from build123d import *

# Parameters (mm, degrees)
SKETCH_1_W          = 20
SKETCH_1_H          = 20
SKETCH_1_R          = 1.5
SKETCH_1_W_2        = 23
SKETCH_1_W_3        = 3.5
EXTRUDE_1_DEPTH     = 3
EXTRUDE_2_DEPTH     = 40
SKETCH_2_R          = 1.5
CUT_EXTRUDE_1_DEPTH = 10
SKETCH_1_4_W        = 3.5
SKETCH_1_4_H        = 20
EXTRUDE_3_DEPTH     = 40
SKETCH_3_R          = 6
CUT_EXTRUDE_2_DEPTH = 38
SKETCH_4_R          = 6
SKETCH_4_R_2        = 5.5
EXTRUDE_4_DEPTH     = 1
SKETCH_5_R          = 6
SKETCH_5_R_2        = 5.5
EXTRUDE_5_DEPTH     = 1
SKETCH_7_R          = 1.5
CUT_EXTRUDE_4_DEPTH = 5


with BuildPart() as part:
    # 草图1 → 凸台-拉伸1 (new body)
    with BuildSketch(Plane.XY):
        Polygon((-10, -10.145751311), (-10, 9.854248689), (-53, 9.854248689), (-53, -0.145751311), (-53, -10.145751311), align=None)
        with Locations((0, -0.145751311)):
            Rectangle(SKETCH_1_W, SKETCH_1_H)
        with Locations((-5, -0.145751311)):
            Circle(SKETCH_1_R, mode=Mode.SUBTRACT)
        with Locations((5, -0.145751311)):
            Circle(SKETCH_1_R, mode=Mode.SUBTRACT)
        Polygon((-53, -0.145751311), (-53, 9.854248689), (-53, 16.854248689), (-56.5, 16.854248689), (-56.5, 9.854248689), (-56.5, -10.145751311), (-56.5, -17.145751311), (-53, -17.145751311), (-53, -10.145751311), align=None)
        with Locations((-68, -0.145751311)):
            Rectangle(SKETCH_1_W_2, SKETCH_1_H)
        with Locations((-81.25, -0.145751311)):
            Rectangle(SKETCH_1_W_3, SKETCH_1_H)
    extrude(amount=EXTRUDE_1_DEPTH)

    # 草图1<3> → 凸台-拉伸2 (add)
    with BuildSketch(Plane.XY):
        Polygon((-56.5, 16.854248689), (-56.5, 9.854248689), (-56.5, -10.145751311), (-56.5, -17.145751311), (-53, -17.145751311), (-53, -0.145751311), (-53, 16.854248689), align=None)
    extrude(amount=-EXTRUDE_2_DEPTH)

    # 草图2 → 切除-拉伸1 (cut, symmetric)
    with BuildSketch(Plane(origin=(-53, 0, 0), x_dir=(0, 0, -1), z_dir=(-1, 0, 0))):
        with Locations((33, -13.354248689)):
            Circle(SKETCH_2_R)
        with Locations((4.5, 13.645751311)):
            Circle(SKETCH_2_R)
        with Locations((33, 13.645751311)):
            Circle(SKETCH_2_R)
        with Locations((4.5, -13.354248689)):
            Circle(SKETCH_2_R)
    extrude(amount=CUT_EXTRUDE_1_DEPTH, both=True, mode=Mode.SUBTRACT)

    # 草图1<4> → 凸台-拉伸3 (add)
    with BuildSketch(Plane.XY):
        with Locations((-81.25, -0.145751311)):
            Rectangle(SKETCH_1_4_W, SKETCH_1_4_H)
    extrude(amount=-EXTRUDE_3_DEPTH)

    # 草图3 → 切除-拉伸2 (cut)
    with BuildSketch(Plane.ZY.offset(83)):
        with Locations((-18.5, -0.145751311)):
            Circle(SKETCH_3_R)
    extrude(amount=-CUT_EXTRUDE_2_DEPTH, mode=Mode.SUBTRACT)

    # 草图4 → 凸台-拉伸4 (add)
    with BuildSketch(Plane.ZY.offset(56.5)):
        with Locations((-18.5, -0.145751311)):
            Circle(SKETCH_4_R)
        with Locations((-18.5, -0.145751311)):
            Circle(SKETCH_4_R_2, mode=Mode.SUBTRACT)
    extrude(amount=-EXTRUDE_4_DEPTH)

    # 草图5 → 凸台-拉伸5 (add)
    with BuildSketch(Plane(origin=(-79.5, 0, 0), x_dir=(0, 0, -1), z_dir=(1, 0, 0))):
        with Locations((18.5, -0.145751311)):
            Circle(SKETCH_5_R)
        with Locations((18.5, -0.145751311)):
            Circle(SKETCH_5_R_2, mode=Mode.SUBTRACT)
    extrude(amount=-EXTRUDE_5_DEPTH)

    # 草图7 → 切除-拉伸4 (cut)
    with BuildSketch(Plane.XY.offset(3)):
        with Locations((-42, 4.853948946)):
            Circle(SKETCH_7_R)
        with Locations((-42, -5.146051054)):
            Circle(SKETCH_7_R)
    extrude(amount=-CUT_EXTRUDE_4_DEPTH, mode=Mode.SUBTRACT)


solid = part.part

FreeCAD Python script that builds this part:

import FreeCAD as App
import Part
import Sketcher
Q = App.Units.Quantity


def add_polygon(sketch, points):
    """Adds a closed chain of lines whose ends are joined by coincident constraints."""
    first, n = sketch.GeometryCount, len(points)
    for a, b in zip(points, points[1:] + points[:1]):
        sketch.addGeometry(Part.LineSegment(App.Vector(*a, 0), App.Vector(*b, 0)), False)
    for i in range(n):
        sketch.addConstraint(Sketcher.Constraint("Coincident", first + i, 2, first + (i + 1) % n, 1))

doc = App.newDocument("Part")
body = doc.addObject("PartDesign::Body", "Body")

sketch1 = doc.addObject("Sketcher::SketchObject", "Sketch")
body.addObject(sketch1)
sketch1.AttachmentSupport = (doc.XY_Plane, [""])
sketch1.MapMode = "FlatFace"
add_polygon(sketch1, [(10, 9.9), (-53, 9.9), (-53, 16.9), (-56.5, 16.9), (-56.5, 9.9), (-83, 9.9), (-83, -10.1), (-56.5, -10.1), (-56.5, -17.1), (-53, -17.1), (-53, -10.1), (10, -10.1)])
sketch1.addGeometry(Part.Circle(App.Vector(-5, -0.1, 0), App.Vector(0, 0, 1), 1.5), False)
sketch1.addGeometry(Part.Circle(App.Vector(5, -0.1, 0), App.Vector(0, 0, 1), 1.5), False)
sketch1.addConstraint([
    Sketcher.Constraint("Horizontal", 0),
    Sketcher.Constraint("Vertical", 1),
    Sketcher.Constraint("Horizontal", 2),
    Sketcher.Constraint("Vertical", 3),
    Sketcher.Constraint("Horizontal", 4),
    Sketcher.Constraint("Vertical", 5),
    Sketcher.Constraint("Horizontal", 6),
    Sketcher.Constraint("Vertical", 7),
    Sketcher.Constraint("Horizontal", 8),
    Sketcher.Constraint("Vertical", 9),
    Sketcher.Constraint("Horizontal", 10),
    Sketcher.Constraint("Vertical", 11),
    Sketcher.Constraint("Equal", 12, 13),
    Sketcher.Constraint("Symmetric", 12, 3, 13, 3, -2),
    Sketcher.Constraint("Horizontal", 0, 2, 3, 2),
    Sketcher.Constraint("Horizontal", 6, 2, 9, 2),
    Sketcher.Constraint("Vertical", 3, 2, 6, 2),
    Sketcher.Constraint("Vertical", 1, 2, 8, 2),
    Sketcher.Constraint("Equal", 3, 7),
    Sketcher.Constraint("Diameter", 12, Q("3 mm")),
    Sketcher.Constraint("DistanceX", 0, 2, 0, 1, Q("63 mm")),
    Sketcher.Constraint("DistanceY", 1, 1, 1, 2, Q("7 mm")),
    Sketcher.Constraint("DistanceY", 5, 2, 5, 1, Q("20 mm")),
    Sketcher.Constraint("DistanceX", 2, 2, 2, 1, Q("3.5 mm")),
    Sketcher.Constraint("DistanceX", 4, 2, 4, 1, Q("26.5 mm")),
    Sketcher.Constraint("DistanceX", 12, 3, -1, 1, Q("5 mm")),
    Sketcher.Constraint("DistanceX", 0, 2, -1, 1, Q("53 mm")),
    Sketcher.Constraint("DistanceY", 12, 3, 0, 2, Q("10 mm")),
    Sketcher.Constraint("DistanceY", 12, 3, -1, 1, Q("0.145751 mm")),
])
pad1 = doc.addObject("PartDesign::Pad", "Pad")
body.addObject(pad1)
pad1.Profile = sketch1
pad1.Length = 3

sketch2 = doc.addObject("Sketcher::SketchObject", "Sketch001")
body.addObject(sketch2)
sketch2.AttachmentSupport = (doc.XY_Plane, [""])
sketch2.MapMode = "FlatFace"
add_polygon(sketch2, [(-56.5, 16.9), (-56.5, -17.1), (-53, -17.1), (-53, 16.9)])
sketch2.addConstraint([
    Sketcher.Constraint("Vertical", 0),
    Sketcher.Constraint("Horizontal", 1),
    Sketcher.Constraint("Vertical", 2),
    Sketcher.Constraint("Horizontal", 3),
    Sketcher.Constraint("DistanceY", 0, 2, 0, 1, Q("34 mm")),
    Sketcher.Constraint("DistanceX", 1, 1, 1, 2, Q("3.5 mm")),
    Sketcher.Constraint("DistanceX", 1, 2, -1, 1, Q("53 mm")),
    Sketcher.Constraint("DistanceY", 0, 2, -1, 1, Q("17.145751 mm")),
])
pad2 = doc.addObject("PartDesign::Pad", "Pad001")
body.addObject(pad2)
pad2.Profile = sketch2
pad2.Length = 40
pad2.Reversed = True

sketch3 = doc.addObject("Sketcher::SketchObject", "Sketch002")
body.addObject(sketch3)
sketch3.AttachmentSupport = (doc.YZ_Plane, [""])
sketch3.MapMode = "FlatFace"
sketch3.AttachmentOffset = App.Placement(App.Vector(0, 0, -53), App.Rotation())
sketch3.addGeometry([
    Part.Circle(App.Vector(13.4, -33, 0), App.Vector(0, 0, 1), 1.5),
    Part.Circle(App.Vector(-13.6, -4.5, 0), App.Vector(0, 0, 1), 1.5),
    Part.Circle(App.Vector(-13.6, -33, 0), App.Vector(0, 0, 1), 1.5),
    Part.Circle(App.Vector(13.4, -4.5, 0), App.Vector(0, 0, 1), 1.5),
], False)
sketch3.addConstraint([
    Sketcher.Constraint("Equal", 0, 1),
    Sketcher.Constraint("Equal", 1, 2),
    Sketcher.Constraint("Equal", 2, 3),
    Sketcher.Constraint("Horizontal", 0, 3, 2, 3),
    Sketcher.Constraint("Horizontal", 1, 3, 3, 3),
    Sketcher.Constraint("Vertical", 1, 3, 2, 3),
    Sketcher.Constraint("Vertical", 0, 3, 3, 3),
    Sketcher.Constraint("Diameter", 0, Q("3 mm")),
    Sketcher.Constraint("DistanceY", 0, 3, -1, 1, Q("33 mm")),
    Sketcher.Constraint("DistanceX", 1, 3, 0, 3, Q("27 mm")),
    Sketcher.Constraint("DistanceY", 1, 3, -1, 1, Q("4.5 mm")),
    Sketcher.Constraint("DistanceX", -1, 1, 0, 3, Q("13.354249 mm")),
])
pocket1 = doc.addObject("PartDesign::Pocket", "Pocket")
body.addObject(pocket1)
pocket1.Profile = sketch3
pocket1.Length = 20
pocket1.Midplane = True

sketch4 = doc.addObject("Sketcher::SketchObject", "Sketch003")
body.addObject(sketch4)
sketch4.AttachmentSupport = (doc.XY_Plane, [""])
sketch4.MapMode = "FlatFace"
add_polygon(sketch4, [(-83, 9.9), (-83, -10.1), (-79.5, -10.1), (-79.5, 9.9)])
sketch4.addConstraint([
    Sketcher.Constraint("Vertical", 0),
    Sketcher.Constraint("Horizontal", 1),
    Sketcher.Constraint("Vertical", 2),
    Sketcher.Constraint("Horizontal", 3),
    Sketcher.Constraint("DistanceY", 0, 2, 0, 1, Q("20 mm")),
    Sketcher.Constraint("DistanceX", 1, 1, 1, 2, Q("3.5 mm")),
    Sketcher.Constraint("DistanceX", 0, 2, -1, 1, Q("83 mm")),
    Sketcher.Constraint("DistanceY", 0, 2, -1, 1, Q("10.145751 mm")),
])
pad3 = doc.addObject("PartDesign::Pad", "Pad002")
body.addObject(pad3)
pad3.Profile = sketch4
pad3.Length = 40
pad3.Reversed = True

sketch5 = doc.addObject("Sketcher::SketchObject", "Sketch004")
body.addObject(sketch5)
sketch5.AttachmentSupport = (doc.YZ_Plane, [""])
sketch5.MapMode = "FlatFace"
sketch5.AttachmentOffset = App.Placement(App.Vector(0, 0, -83), App.Rotation())
sketch5.addGeometry(Part.Circle(App.Vector(0, -18, 0), App.Vector(0, 0, 1), 6), False)
sketch5.addConstraint([
    Sketcher.Constraint("Diameter", 0, Q("12 mm")),
    Sketcher.Constraint("DistanceY", 0, 3, -1, 1, Q("18.5 mm")),
    Sketcher.Constraint("DistanceX", 0, 3, -1, 1, Q("0.145751 mm")),
])
pocket2 = doc.addObject("PartDesign::Pocket", "Pocket001")
body.addObject(pocket2)
pocket2.Profile = sketch5
pocket2.Length = 38
pocket2.Reversed = True

sketch6 = doc.addObject("Sketcher::SketchObject", "Sketch005")
body.addObject(sketch6)
sketch6.AttachmentSupport = (doc.YZ_Plane, [""])
sketch6.MapMode = "FlatFace"
sketch6.AttachmentOffset = App.Placement(App.Vector(0, 0, -56.5), App.Rotation())
sketch6.addGeometry([
    Part.Circle(App.Vector(0, -18, 0), App.Vector(0, 0, 1), 6),
    Part.Circle(App.Vector(0, -18, 0), App.Vector(0, 0, 1), 6),
], False)
sketch6.addConstraint([
    Sketcher.Constraint("Coincident", 1, 3, 0, 3),
    Sketcher.Constraint("Diameter", 0, Q("12 mm")),
    Sketcher.Constraint("Diameter", 1, Q("11 mm")),
    Sketcher.Constraint("DistanceY", 0, 3, -1, 1, Q("18.5 mm")),
    Sketcher.Constraint("DistanceX", 0, 3, -1, 1, Q("0.145751 mm")),
])
pad4 = doc.addObject("PartDesign::Pad", "Pad003")
body.addObject(pad4)
pad4.Profile = sketch6
pad4.Length = 1

sketch7 = doc.addObject("Sketcher::SketchObject", "Sketch006")
body.addObject(sketch7)
sketch7.AttachmentSupport = (doc.YZ_Plane, [""])
sketch7.MapMode = "FlatFace"
sketch7.AttachmentOffset = App.Placement(App.Vector(0, 0, -79.5), App.Rotation())
sketch7.addGeometry([
    Part.Circle(App.Vector(0, -18, 0), App.Vector(0, 0, 1), 6),
    Part.Circle(App.Vector(0, -18, 0), App.Vector(0, 0, 1), 6),
], False)
sketch7.addConstraint([
    Sketcher.Constraint("Coincident", 1, 3, 0, 3),
    Sketcher.Constraint("Diameter", 0, Q("12 mm")),
    Sketcher.Constraint("Diameter", 1, Q("11 mm")),
    Sketcher.Constraint("DistanceY", 0, 3, -1, 1, Q("18.5 mm")),
    Sketcher.Constraint("DistanceX", 0, 3, -1, 1, Q("0.145751 mm")),
])
pad5 = doc.addObject("PartDesign::Pad", "Pad004")
body.addObject(pad5)
pad5.Profile = sketch7
pad5.Length = 1
pad5.Reversed = True

sketch8 = doc.addObject("Sketcher::SketchObject", "Sketch007")
body.addObject(sketch8)
sketch8.AttachmentSupport = (doc.XY_Plane, [""])
sketch8.MapMode = "FlatFace"
sketch8.AttachmentOffset = App.Placement(App.Vector(0, 0, 3), App.Rotation())
sketch8.addGeometry([
    Part.Circle(App.Vector(-42, 4.9, 0), App.Vector(0, 0, 1), 1.5),
    Part.Circle(App.Vector(-42, -5.1, 0), App.Vector(0, 0, 1), 1.5),
], False)
sketch8.addConstraint([
    Sketcher.Constraint("Equal", 0, 1),
    Sketcher.Constraint("Vertical", 0, 3, 1, 3),
    Sketcher.Constraint("Diameter", 0, Q("3 mm")),
    Sketcher.Constraint("DistanceX", 0, 3, -1, 1, Q("42 mm")),
    Sketcher.Constraint("DistanceY", 1, 3, 0, 3, Q("10 mm")),
    Sketcher.Constraint("DistanceY", -1, 1, 0, 3, Q("4.853949 mm")),
])
pocket3 = doc.addObject("PartDesign::Pocket", "Pocket002")
body.addObject(pocket3)
pocket3.Profile = sketch8
pocket3.Length = 5

doc.recompute()
